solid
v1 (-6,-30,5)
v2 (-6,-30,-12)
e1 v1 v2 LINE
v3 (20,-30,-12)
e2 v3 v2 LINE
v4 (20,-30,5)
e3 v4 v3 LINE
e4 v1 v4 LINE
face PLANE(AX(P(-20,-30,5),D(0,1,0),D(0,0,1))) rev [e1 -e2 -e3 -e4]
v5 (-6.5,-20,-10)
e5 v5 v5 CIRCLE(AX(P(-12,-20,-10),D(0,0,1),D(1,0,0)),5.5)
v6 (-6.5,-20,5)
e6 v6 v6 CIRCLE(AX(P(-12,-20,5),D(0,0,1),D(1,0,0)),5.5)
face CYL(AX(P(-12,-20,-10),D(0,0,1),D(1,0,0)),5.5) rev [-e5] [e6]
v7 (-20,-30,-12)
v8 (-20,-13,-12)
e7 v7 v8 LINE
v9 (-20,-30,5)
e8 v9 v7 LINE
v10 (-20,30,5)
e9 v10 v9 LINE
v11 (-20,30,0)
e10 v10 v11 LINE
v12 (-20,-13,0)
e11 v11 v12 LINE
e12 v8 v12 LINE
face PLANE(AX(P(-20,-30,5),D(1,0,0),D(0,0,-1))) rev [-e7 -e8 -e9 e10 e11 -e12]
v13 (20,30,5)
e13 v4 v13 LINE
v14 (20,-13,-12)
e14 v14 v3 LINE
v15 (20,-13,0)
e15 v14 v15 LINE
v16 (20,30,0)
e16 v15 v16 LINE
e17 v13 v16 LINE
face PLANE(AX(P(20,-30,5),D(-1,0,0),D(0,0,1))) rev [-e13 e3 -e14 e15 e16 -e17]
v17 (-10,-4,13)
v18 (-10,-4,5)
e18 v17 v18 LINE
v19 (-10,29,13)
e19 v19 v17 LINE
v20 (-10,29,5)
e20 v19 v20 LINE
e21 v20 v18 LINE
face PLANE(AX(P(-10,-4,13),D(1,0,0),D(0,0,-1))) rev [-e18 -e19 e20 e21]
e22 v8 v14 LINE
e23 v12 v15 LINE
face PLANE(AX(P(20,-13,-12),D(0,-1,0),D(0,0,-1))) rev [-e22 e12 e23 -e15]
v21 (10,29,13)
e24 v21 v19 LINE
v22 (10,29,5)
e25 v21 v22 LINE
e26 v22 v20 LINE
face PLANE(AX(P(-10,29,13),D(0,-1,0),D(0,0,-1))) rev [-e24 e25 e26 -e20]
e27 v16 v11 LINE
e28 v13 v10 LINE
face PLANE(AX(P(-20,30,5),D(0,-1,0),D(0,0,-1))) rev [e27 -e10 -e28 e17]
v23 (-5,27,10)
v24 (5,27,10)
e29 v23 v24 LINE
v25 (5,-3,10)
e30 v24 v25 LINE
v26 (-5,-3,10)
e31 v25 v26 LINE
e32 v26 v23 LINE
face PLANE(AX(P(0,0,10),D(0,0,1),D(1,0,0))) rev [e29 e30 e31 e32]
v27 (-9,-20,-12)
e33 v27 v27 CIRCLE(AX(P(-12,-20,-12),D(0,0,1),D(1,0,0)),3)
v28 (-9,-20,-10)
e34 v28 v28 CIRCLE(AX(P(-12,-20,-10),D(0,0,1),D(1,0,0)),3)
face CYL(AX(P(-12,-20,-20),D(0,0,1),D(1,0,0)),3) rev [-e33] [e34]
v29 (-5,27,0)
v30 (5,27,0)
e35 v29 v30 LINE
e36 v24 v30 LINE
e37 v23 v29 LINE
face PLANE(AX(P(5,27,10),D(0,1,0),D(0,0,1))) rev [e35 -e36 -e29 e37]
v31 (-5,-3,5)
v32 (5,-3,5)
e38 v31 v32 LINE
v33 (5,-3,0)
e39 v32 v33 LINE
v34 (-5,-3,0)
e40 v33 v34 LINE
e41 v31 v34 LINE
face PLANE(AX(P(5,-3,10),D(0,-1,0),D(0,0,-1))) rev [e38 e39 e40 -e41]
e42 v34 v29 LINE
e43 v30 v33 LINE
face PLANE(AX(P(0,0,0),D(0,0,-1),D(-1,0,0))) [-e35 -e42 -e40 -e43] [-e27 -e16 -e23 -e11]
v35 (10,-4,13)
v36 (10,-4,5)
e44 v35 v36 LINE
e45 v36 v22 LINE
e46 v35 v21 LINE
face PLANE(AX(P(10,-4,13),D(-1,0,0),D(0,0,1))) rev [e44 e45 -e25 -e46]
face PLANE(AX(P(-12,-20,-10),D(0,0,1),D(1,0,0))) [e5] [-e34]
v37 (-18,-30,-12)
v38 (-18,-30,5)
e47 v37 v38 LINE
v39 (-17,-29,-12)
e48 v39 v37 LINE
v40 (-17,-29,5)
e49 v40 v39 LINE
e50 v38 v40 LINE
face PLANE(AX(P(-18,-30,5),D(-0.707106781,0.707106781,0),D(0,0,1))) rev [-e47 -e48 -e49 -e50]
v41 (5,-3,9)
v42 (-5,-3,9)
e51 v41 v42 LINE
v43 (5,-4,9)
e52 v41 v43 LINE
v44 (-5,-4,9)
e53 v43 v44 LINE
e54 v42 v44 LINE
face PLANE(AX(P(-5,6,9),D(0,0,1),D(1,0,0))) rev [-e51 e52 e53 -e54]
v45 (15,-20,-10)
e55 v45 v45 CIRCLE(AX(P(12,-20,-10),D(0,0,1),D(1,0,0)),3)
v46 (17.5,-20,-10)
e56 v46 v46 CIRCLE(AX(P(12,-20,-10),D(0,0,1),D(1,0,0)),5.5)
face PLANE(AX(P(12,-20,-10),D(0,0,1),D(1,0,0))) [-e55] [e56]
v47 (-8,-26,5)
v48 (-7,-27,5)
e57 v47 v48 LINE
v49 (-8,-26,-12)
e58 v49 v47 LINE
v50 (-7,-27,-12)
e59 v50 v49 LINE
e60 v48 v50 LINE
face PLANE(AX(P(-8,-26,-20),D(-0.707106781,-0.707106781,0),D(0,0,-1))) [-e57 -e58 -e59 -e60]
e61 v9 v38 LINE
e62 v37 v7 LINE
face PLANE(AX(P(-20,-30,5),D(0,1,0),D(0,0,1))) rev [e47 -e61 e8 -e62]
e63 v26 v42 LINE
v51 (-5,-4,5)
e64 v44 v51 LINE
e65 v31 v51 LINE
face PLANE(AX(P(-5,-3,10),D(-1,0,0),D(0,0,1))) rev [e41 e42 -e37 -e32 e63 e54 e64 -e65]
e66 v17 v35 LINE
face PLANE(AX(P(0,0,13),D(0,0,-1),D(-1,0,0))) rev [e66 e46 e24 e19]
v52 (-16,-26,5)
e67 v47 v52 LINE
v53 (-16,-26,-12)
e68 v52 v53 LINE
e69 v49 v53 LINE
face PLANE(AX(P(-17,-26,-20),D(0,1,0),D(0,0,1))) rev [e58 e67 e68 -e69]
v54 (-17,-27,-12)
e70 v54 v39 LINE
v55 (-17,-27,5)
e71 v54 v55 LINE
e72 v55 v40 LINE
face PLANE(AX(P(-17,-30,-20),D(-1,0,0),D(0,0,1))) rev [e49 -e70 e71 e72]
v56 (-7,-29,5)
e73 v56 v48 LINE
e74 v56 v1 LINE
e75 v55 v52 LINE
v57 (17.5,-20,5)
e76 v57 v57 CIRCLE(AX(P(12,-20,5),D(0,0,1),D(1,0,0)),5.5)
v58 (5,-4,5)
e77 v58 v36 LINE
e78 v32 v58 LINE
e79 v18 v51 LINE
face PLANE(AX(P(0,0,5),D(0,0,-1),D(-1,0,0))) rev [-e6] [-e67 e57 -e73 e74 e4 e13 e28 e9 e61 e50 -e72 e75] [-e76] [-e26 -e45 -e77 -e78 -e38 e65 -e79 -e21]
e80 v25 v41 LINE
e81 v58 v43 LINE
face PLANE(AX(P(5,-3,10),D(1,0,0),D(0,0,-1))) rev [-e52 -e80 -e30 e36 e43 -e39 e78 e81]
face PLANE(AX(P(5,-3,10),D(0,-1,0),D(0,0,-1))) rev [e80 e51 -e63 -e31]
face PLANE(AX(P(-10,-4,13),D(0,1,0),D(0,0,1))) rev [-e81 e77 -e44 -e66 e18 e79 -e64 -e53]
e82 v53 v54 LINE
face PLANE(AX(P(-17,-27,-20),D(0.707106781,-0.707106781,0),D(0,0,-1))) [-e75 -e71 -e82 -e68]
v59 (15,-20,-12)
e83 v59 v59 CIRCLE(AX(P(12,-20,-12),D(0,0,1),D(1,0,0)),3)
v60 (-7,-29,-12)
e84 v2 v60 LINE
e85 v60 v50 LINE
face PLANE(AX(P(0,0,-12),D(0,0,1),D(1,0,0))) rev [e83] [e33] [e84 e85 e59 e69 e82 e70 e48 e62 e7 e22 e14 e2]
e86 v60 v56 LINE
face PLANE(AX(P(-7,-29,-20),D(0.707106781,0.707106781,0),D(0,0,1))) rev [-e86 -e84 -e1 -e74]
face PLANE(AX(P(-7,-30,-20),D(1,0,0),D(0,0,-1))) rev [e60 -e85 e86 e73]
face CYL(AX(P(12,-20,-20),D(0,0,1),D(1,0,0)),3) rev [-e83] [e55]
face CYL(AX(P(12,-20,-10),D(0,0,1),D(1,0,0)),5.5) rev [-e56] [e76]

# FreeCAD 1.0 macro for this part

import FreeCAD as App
import Part
import Sketcher
from FreeCAD import Vector
Q = App.Units.Quantity


def edges_at(feature, points):
    """Names of the edges that pass closest to the given points."""
    edges = feature.Shape.Edges
    near = lambda p: min(range(len(edges)), key=lambda i: edges[i].distToShape(Part.Vertex(*p))[0])
    return sorted({f"Edge{near(p) + 1}" for p in points})

doc = App.newDocument("Part")
body = doc.addObject("PartDesign::Body", "Body")

# Sketch on XY plane
sketch1 = body.newObject("Sketcher::SketchObject", "Sketch")
sketch1.AttachmentSupport = (doc.getObject("XY_Plane"), [""])
sketch1.MapMode = "FlatFace"
sketch1.addGeometry(Part.LineSegment(Vector(-20, 30, 0), Vector(-20, -30, 0)), False)
sketch1.addGeometry(Part.LineSegment(Vector(-20, -30, 0), Vector(20, -30, 0)), False)
sketch1.addGeometry(Part.LineSegment(Vector(20, -30, 0), Vector(20, 30, 0)), False)
sketch1.addGeometry(Part.LineSegment(Vector(20, 30, 0), Vector(-20, 30, 0)), False)
sketch1.addConstraint(Sketcher.Constraint("Coincident", 0, 2, 1, 1))
sketch1.addConstraint(Sketcher.Constraint("Coincident", 1, 2, 2, 1))
sketch1.addConstraint(Sketcher.Constraint("Coincident", 2, 2, 3, 1))
sketch1.addConstraint(Sketcher.Constraint("Coincident", 3, 2, 0, 1))
sketch1.addConstraint(Sketcher.Constraint("Vertical", 0))
sketch1.addConstraint(Sketcher.Constraint("Horizontal", 1))
sketch1.addConstraint(Sketcher.Constraint("Vertical", 2))
sketch1.addConstraint(Sketcher.Constraint("Horizontal", 3))
sketch1.addConstraint(Sketcher.Constraint("Symmetric", 0, 2, 2, 2, -1, 1))
sketch1.addConstraint(Sketcher.Constraint("DistanceX", 1, 1, 1, 2, Q("40 mm")))
sketch1.addConstraint(Sketcher.Constraint("DistanceY", 0, 2, 0, 1, Q("60 mm")))
pad1 = body.newObject("PartDesign::Pad", "Pad")
pad1.Profile = sketch1
pad1.Length = 5

# Sketch on XY plane
sketch2 = body.newObject("Sketcher::SketchObject", "Sketch001")
sketch2.AttachmentSupport = (doc.getObject("XY_Plane"), [""])
sketch2.MapMode = "FlatFace"
sketch2.addGeometry(Part.LineSegment(Vector(20, -13, 0), Vector(20, -30, 0)), False)
sketch2.addGeometry(Part.LineSegment(Vector(20, -30, 0), Vector(-20, -30, 0)), False)
sketch2.addGeometry(Part.LineSegment(Vector(-20, -30, 0), Vector(-20, -13, 0)), False)
sketch2.addGeometry(Part.LineSegment(Vector(-20, -13, 0), Vector(20, -13, 0)), False)
sketch2.addConstraint(Sketcher.Constraint("Coincident", 0, 2, 1, 1))
sketch2.addConstraint(Sketcher.Constraint("Coincident", 1, 2, 2, 1))
sketch2.addConstraint(Sketcher.Constraint("Coincident", 2, 2, 3, 1))
sketch2.addConstraint(Sketcher.Constraint("Coincident", 3, 2, 0, 1))
sketch2.addConstraint(Sketcher.Constraint("Vertical", 0))
sketch2.addConstraint(Sketcher.Constraint("Horizontal", 1))
sketch2.addConstraint(Sketcher.Constraint("Vertical", 2))
sketch2.addConstraint(Sketcher.Constraint("Horizontal", 3))
sketch2.addConstraint(Sketcher.Constraint("DistanceX", 1, 2, 1, 1, Q("40 mm")))
sketch2.addConstraint(Sketcher.Constraint("DistanceY", 0, 2, 0, 1, Q("17 mm")))
sketch2.addConstraint(Sketcher.Constraint("DistanceX", -1, 1, 0, 2, Q("20 mm")))
sketch2.addConstraint(Sketcher.Constraint("DistanceY", 0, 2, -1, 1, Q("30 mm")))
pad2 = body.newObject("PartDesign::Pad", "Pad001")
pad2.Profile = sketch2
pad2.Length = 12
pad2.Reversed = True

# Sketch on XY plane
sketch3 = body.newObject("Sketcher::SketchObject", "Sketch002")
sketch3.AttachmentSupport = (doc.getObject("XY_Plane"), [""])
sketch3.MapMode = "FlatFace"
sketch3.AttachmentOffset = App.Placement(Vector(0, 0, 5), App.Rotation())
sketch3.addGeometry(Part.Circle(Vector(-12, -20, 0), Vector(0, 0, 1), 5.5), False)
sketch3.addGeometry(Part.Circle(Vector(12, -20, 0), Vector(0, 0, 1), 5.5), False)
sketch3.addConstraint(Sketcher.Constraint("Equal", 0, 1))
sketch3.addConstraint(Sketcher.Constraint("Symmetric", 0, 3, 1, 3, -2))
sketch3.addConstraint(Sketcher.Constraint("Diameter", 0, Q("11 mm")))
sketch3.addConstraint(Sketcher.Constraint("DistanceX", 0, 3, -1, 1, Q("12 mm")))
sketch3.addConstraint(Sketcher.Constraint("DistanceY", 0, 3, -1, 1, Q("20 mm")))
pocket1 = body.newObject("PartDesign::Pocket", "Pocket")
pocket1.Profile = sketch3
pocket1.Length = 15

# Sketch on XY plane
sketch4 = body.newObject("Sketcher::SketchObject", "Sketch003")
sketch4.AttachmentSupport = (doc.getObject("XY_Plane"), [""])
sketch4.MapMode = "FlatFace"
sketch4.AttachmentOffset = App.Placement(Vector(0, 0, -10), App.Rotation())
sketch4.addGeometry(Part.Circle(Vector(-12, -20, 0), Vector(0, 0, 1), 3), False)
sketch4.addGeometry(Part.Circle(Vector(12, -20, 0), Vector(0, 0, 1), 3), False)
sketch4.addConstraint(Sketcher.Constraint("Equal", 0, 1))
sketch4.addConstraint(Sketcher.Constraint("Symmetric", 0, 3, 1, 3, -2))
sketch4.addConstraint(Sketcher.Constraint("Diameter", 0, Q("6 mm")))
sketch4.addConstraint(Sketcher.Constraint("DistanceX", 0, 3, -1, 1, Q("12 mm")))
sketch4.addConstraint(Sketcher.Constraint("DistanceY", 0, 3, -1, 1, Q("20 mm")))
pocket2 = body.newObject("PartDesign::Pocket", "Pocket001")
pocket2.Profile = sketch4
pocket2.Length = 10

# Sketch on XY plane
sketch5 = body.newObject("Sketcher::SketchObject", "Sketch004")
sketch5.AttachmentSupport = (doc.getObject("XY_Plane"), [""])
sketch5.MapMode = "FlatFace"
sketch5.AttachmentOffset = App.Placement(Vector(0, 0, 5), App.Rotation())
sketch5.addGeometry(Part.LineSegment(Vector(-10, 29, 0), Vector(-10, -4, 0)), False)
sketch5.addGeometry(Part.LineSegment(Vector(-10, -4, 0), Vector(10, -4, 0)), False)
sketch5.addGeometry(Part.LineSegment(Vector(10, -4, 0), Vector(10, 29, 0)), False)
sketch5.addGeometry(Part.LineSegment(Vector(10, 29, 0), Vector(-10, 29, 0)), False)
sketch5.addConstraint(Sketcher.Constraint("Coincident", 0, 2, 1, 1))
sketch5.addConstraint(Sketcher.Constraint("Coincident", 1, 2, 2, 1))
sketch5.addConstraint(Sketcher.Constraint("Coincident", 2, 2, 3, 1))
sketch5.addConstraint(Sketcher.Constraint("Coincident", 3, 2, 0, 1))
sketch5.addConstraint(Sketcher.Constraint("Vertical", 0))
sketch5.addConstraint(Sketcher.Constraint("Horizontal", 1))
sketch5.addConstraint(Sketcher.Constraint("Vertical", 2))
sketch5.addConstraint(Sketcher.Constraint("Horizontal", 3))
sketch5.addConstraint(Sketcher.Constraint("DistanceX", 1, 1, 1, 2, Q("20 mm")))
sketch5.addConstraint(Sketcher.Constraint("DistanceY", 0, 2, 0, 1, Q("33 mm")))
sketch5.addConstraint(Sketcher.Constraint("DistanceX", 0, 2, -1, 1, Q("10 mm")))
sketch5.addConstraint(Sketcher.Constraint("DistanceY", 0, 2, -1, 1, Q("4 mm")))
pad3 = body.newObject("PartDesign::Pad", "Pad002")
pad3.Profile = sketch5
pad3.Length = 8

# Sketch on XY plane
sketch6 = body.newObject("Sketcher::SketchObject", "Sketch005")
sketch6.AttachmentSupport = (doc.getObject("XY_Plane"), [""])
sketch6.MapMode = "FlatFace"
sketch6.addGeometry(Part.LineSegment(Vector(5, 27, 0), Vector(5, -3, 0)), False)
sketch6.addGeometry(Part.LineSegment(Vector(5, -3, 0), Vector(-5, -3, 0)), False)
sketch6.addGeometry(Part.LineSegment(Vector(-5, -3, 0), Vector(-5, 27, 0)), False)
sketch6.addGeometry(Part.LineSegment(Vector(-5, 27, 0), Vector(5, 27, 0)), False)
sketch6.addConstraint(Sketcher.Constraint("Coincident", 0, 2, 1, 1))
sketch6.addConstraint(Sketcher.Constraint("Coincident", 1, 2, 2, 1))
sketch6.addConstraint(Sketcher.Constraint("Coincident", 2, 2, 3, 1))
sketch6.addConstraint(Sketcher.Constraint("Coincident", 3, 2, 0, 1))
sketch6.addConstraint(Sketcher.Constraint("Vertical", 0))
sketch6.addConstraint(Sketcher.Constraint("Horizontal", 1))
sketch6.addConstraint(Sketcher.Constraint("Vertical", 2))
sketch6.addConstraint(Sketcher.Constraint("Horizontal", 3))
sketch6.addConstraint(Sketcher.Constraint("DistanceX", 1, 2, 1, 1, Q("10 mm")))
sketch6.addConstraint(Sketcher.Constraint("DistanceY", 0, 2, 0, 1, Q("30 mm")))
sketch6.addConstraint(Sketcher.Constraint("DistanceX", -1, 1, 0, 2, Q("5 mm")))
sketch6.addConstraint(Sketcher.Constraint("DistanceY", 0, 2, -1, 1, Q("3 mm")))
pocket3 = body.newObject("PartDesign::Pocket", "Pocket002")
pocket3.Profile = sketch6
pocket3.Length = 10
pocket3.Reversed = True

# Sketch on XZ plane
sketch7 = body.newObject("Sketcher::SketchObject", "Sketch006")
sketch7.AttachmentSupport = (doc.getObject("XZ_Plane"), [""])
sketch7.MapMode = "FlatFace"
sketch7.AttachmentOffset = App.Placement(Vector(0, 0, 4), App.Rotation())
sketch7.addGeometry(Part.LineSegment(Vector(-5, 9, 0), Vector(-5, 5, 0)), False)
sketch7.addGeometry(Part.LineSegment(Vector(-5, 5, 0), Vector(5, 5, 0)), False)
sketch7.addGeometry(Part.LineSegment(Vector(5, 5, 0), Vector(5, 9, 0)), False)
sketch7.addGeometry(Part.LineSegment(Vector(5, 9, 0), Vector(-5, 9, 0)), False)
sketch7.addConstraint(Sketcher.Constraint("Coincident", 0, 2, 1, 1))
sketch7.addConstraint(Sketcher.Constraint("Coincident", 1, 2, 2, 1))
sketch7.addConstraint(Sketcher.Constraint("Coincident", 2, 2, 3, 1))
sketch7.addConstraint(Sketcher.Constraint("Coincident", 3, 2, 0, 1))
sketch7.addConstraint(Sketcher.Constraint("Vertical", 0))
sketch7.addConstraint(Sketcher.Constraint("Horizontal", 1))
sketch7.addConstraint(Sketcher.Constraint("Vertical", 2))
sketch7.addConstraint(Sketcher.Constraint("Horizontal", 3))
sketch7.addConstraint(Sketcher.Constraint("DistanceX", 1, 1, 1, 2, Q("10 mm")))
sketch7.addConstraint(Sketcher.Constraint("DistanceY", 0, 2, 0, 1, Q("4 mm")))
sketch7.addConstraint(Sketcher.Constraint("DistanceX", 0, 2, -1, 1, Q("5 mm")))
sketch7.addConstraint(Sketcher.Constraint("DistanceY", -1, 1, 0, 2, Q("5 mm")))
pocket4 = body.newObject("PartDesign::Pocket", "Pocket003")
pocket4.Profile = sketch7
pocket4.Length = 10

# Sketch on XY plane
sketch8 = body.newObject("Sketcher::SketchObject", "Sketch007")
sketch8.AttachmentSupport = (doc.getObject("XY_Plane"), [""])
sketch8.MapMode = "FlatFace"
sketch8.AttachmentOffset = App.Placement(Vector(0, 0, 5), App.Rotation())
sketch8.addGeometry(Part.LineSegment(Vector(-17, -26, 0), Vector(-17, -30, 0)), False)
sketch8.addGeometry(Part.LineSegment(Vector(-17, -30, 0), Vector(-7, -30, 0)), False)
sketch8.addGeometry(Part.LineSegment(Vector(-7, -30, 0), Vector(-7, -26, 0)), False)
sketch8.addGeometry(Part.LineSegment(Vector(-7, -26, 0), Vector(-17, -26, 0)), False)
sketch8.addConstraint(Sketcher.Constraint("Coincident", 0, 2, 1, 1))
sketch8.addConstraint(Sketcher.Constraint("Coincident", 1, 2, 2, 1))
sketch8.addConstraint(Sketcher.Constraint("Coincident", 2, 2, 3, 1))
sketch8.addConstraint(Sketcher.Constraint("Coincident", 3, 2, 0, 1))
sketch8.addConstraint(Sketcher.Constraint("Vertical", 0))
sketch8.addConstraint(Sketcher.Constraint("Horizontal", 1))
sketch8.addConstraint(Sketcher.Constraint("Vertical", 2))
sketch8.addConstraint(Sketcher.Constraint("Horizontal", 3))
sketch8.addConstraint(Sketcher.Constraint("DistanceX", 1, 1, 1, 2, Q("10 mm")))
sketch8.addConstraint(Sketcher.Constraint("DistanceY", 0, 2, 0, 1, Q("4 mm")))
sketch8.addConstraint(Sketcher.Constraint("DistanceX", 0, 2, -1, 1, Q("17 mm")))
sketch8.addConstraint(Sketcher.Constraint("DistanceY", 0, 2, -1, 1, Q("30 mm")))
pocket5 = body.newObject("PartDesign::Pocket", "Pocket004")
pocket5.Profile = sketch8
pocket5.Length = 25
doc.recompute()

chamfer = body.newObject("PartDesign::Chamfer", "Chamfer")
chamfer.Base = (pocket5, edges_at(pocket5, [
    (-17, -30, -3.5),
    (-17, -26, -3.5),
    (-7, -26, -3.5),
    (-7, -30, -3.5),
]))
chamfer.Size = 1

doc.recompute()
